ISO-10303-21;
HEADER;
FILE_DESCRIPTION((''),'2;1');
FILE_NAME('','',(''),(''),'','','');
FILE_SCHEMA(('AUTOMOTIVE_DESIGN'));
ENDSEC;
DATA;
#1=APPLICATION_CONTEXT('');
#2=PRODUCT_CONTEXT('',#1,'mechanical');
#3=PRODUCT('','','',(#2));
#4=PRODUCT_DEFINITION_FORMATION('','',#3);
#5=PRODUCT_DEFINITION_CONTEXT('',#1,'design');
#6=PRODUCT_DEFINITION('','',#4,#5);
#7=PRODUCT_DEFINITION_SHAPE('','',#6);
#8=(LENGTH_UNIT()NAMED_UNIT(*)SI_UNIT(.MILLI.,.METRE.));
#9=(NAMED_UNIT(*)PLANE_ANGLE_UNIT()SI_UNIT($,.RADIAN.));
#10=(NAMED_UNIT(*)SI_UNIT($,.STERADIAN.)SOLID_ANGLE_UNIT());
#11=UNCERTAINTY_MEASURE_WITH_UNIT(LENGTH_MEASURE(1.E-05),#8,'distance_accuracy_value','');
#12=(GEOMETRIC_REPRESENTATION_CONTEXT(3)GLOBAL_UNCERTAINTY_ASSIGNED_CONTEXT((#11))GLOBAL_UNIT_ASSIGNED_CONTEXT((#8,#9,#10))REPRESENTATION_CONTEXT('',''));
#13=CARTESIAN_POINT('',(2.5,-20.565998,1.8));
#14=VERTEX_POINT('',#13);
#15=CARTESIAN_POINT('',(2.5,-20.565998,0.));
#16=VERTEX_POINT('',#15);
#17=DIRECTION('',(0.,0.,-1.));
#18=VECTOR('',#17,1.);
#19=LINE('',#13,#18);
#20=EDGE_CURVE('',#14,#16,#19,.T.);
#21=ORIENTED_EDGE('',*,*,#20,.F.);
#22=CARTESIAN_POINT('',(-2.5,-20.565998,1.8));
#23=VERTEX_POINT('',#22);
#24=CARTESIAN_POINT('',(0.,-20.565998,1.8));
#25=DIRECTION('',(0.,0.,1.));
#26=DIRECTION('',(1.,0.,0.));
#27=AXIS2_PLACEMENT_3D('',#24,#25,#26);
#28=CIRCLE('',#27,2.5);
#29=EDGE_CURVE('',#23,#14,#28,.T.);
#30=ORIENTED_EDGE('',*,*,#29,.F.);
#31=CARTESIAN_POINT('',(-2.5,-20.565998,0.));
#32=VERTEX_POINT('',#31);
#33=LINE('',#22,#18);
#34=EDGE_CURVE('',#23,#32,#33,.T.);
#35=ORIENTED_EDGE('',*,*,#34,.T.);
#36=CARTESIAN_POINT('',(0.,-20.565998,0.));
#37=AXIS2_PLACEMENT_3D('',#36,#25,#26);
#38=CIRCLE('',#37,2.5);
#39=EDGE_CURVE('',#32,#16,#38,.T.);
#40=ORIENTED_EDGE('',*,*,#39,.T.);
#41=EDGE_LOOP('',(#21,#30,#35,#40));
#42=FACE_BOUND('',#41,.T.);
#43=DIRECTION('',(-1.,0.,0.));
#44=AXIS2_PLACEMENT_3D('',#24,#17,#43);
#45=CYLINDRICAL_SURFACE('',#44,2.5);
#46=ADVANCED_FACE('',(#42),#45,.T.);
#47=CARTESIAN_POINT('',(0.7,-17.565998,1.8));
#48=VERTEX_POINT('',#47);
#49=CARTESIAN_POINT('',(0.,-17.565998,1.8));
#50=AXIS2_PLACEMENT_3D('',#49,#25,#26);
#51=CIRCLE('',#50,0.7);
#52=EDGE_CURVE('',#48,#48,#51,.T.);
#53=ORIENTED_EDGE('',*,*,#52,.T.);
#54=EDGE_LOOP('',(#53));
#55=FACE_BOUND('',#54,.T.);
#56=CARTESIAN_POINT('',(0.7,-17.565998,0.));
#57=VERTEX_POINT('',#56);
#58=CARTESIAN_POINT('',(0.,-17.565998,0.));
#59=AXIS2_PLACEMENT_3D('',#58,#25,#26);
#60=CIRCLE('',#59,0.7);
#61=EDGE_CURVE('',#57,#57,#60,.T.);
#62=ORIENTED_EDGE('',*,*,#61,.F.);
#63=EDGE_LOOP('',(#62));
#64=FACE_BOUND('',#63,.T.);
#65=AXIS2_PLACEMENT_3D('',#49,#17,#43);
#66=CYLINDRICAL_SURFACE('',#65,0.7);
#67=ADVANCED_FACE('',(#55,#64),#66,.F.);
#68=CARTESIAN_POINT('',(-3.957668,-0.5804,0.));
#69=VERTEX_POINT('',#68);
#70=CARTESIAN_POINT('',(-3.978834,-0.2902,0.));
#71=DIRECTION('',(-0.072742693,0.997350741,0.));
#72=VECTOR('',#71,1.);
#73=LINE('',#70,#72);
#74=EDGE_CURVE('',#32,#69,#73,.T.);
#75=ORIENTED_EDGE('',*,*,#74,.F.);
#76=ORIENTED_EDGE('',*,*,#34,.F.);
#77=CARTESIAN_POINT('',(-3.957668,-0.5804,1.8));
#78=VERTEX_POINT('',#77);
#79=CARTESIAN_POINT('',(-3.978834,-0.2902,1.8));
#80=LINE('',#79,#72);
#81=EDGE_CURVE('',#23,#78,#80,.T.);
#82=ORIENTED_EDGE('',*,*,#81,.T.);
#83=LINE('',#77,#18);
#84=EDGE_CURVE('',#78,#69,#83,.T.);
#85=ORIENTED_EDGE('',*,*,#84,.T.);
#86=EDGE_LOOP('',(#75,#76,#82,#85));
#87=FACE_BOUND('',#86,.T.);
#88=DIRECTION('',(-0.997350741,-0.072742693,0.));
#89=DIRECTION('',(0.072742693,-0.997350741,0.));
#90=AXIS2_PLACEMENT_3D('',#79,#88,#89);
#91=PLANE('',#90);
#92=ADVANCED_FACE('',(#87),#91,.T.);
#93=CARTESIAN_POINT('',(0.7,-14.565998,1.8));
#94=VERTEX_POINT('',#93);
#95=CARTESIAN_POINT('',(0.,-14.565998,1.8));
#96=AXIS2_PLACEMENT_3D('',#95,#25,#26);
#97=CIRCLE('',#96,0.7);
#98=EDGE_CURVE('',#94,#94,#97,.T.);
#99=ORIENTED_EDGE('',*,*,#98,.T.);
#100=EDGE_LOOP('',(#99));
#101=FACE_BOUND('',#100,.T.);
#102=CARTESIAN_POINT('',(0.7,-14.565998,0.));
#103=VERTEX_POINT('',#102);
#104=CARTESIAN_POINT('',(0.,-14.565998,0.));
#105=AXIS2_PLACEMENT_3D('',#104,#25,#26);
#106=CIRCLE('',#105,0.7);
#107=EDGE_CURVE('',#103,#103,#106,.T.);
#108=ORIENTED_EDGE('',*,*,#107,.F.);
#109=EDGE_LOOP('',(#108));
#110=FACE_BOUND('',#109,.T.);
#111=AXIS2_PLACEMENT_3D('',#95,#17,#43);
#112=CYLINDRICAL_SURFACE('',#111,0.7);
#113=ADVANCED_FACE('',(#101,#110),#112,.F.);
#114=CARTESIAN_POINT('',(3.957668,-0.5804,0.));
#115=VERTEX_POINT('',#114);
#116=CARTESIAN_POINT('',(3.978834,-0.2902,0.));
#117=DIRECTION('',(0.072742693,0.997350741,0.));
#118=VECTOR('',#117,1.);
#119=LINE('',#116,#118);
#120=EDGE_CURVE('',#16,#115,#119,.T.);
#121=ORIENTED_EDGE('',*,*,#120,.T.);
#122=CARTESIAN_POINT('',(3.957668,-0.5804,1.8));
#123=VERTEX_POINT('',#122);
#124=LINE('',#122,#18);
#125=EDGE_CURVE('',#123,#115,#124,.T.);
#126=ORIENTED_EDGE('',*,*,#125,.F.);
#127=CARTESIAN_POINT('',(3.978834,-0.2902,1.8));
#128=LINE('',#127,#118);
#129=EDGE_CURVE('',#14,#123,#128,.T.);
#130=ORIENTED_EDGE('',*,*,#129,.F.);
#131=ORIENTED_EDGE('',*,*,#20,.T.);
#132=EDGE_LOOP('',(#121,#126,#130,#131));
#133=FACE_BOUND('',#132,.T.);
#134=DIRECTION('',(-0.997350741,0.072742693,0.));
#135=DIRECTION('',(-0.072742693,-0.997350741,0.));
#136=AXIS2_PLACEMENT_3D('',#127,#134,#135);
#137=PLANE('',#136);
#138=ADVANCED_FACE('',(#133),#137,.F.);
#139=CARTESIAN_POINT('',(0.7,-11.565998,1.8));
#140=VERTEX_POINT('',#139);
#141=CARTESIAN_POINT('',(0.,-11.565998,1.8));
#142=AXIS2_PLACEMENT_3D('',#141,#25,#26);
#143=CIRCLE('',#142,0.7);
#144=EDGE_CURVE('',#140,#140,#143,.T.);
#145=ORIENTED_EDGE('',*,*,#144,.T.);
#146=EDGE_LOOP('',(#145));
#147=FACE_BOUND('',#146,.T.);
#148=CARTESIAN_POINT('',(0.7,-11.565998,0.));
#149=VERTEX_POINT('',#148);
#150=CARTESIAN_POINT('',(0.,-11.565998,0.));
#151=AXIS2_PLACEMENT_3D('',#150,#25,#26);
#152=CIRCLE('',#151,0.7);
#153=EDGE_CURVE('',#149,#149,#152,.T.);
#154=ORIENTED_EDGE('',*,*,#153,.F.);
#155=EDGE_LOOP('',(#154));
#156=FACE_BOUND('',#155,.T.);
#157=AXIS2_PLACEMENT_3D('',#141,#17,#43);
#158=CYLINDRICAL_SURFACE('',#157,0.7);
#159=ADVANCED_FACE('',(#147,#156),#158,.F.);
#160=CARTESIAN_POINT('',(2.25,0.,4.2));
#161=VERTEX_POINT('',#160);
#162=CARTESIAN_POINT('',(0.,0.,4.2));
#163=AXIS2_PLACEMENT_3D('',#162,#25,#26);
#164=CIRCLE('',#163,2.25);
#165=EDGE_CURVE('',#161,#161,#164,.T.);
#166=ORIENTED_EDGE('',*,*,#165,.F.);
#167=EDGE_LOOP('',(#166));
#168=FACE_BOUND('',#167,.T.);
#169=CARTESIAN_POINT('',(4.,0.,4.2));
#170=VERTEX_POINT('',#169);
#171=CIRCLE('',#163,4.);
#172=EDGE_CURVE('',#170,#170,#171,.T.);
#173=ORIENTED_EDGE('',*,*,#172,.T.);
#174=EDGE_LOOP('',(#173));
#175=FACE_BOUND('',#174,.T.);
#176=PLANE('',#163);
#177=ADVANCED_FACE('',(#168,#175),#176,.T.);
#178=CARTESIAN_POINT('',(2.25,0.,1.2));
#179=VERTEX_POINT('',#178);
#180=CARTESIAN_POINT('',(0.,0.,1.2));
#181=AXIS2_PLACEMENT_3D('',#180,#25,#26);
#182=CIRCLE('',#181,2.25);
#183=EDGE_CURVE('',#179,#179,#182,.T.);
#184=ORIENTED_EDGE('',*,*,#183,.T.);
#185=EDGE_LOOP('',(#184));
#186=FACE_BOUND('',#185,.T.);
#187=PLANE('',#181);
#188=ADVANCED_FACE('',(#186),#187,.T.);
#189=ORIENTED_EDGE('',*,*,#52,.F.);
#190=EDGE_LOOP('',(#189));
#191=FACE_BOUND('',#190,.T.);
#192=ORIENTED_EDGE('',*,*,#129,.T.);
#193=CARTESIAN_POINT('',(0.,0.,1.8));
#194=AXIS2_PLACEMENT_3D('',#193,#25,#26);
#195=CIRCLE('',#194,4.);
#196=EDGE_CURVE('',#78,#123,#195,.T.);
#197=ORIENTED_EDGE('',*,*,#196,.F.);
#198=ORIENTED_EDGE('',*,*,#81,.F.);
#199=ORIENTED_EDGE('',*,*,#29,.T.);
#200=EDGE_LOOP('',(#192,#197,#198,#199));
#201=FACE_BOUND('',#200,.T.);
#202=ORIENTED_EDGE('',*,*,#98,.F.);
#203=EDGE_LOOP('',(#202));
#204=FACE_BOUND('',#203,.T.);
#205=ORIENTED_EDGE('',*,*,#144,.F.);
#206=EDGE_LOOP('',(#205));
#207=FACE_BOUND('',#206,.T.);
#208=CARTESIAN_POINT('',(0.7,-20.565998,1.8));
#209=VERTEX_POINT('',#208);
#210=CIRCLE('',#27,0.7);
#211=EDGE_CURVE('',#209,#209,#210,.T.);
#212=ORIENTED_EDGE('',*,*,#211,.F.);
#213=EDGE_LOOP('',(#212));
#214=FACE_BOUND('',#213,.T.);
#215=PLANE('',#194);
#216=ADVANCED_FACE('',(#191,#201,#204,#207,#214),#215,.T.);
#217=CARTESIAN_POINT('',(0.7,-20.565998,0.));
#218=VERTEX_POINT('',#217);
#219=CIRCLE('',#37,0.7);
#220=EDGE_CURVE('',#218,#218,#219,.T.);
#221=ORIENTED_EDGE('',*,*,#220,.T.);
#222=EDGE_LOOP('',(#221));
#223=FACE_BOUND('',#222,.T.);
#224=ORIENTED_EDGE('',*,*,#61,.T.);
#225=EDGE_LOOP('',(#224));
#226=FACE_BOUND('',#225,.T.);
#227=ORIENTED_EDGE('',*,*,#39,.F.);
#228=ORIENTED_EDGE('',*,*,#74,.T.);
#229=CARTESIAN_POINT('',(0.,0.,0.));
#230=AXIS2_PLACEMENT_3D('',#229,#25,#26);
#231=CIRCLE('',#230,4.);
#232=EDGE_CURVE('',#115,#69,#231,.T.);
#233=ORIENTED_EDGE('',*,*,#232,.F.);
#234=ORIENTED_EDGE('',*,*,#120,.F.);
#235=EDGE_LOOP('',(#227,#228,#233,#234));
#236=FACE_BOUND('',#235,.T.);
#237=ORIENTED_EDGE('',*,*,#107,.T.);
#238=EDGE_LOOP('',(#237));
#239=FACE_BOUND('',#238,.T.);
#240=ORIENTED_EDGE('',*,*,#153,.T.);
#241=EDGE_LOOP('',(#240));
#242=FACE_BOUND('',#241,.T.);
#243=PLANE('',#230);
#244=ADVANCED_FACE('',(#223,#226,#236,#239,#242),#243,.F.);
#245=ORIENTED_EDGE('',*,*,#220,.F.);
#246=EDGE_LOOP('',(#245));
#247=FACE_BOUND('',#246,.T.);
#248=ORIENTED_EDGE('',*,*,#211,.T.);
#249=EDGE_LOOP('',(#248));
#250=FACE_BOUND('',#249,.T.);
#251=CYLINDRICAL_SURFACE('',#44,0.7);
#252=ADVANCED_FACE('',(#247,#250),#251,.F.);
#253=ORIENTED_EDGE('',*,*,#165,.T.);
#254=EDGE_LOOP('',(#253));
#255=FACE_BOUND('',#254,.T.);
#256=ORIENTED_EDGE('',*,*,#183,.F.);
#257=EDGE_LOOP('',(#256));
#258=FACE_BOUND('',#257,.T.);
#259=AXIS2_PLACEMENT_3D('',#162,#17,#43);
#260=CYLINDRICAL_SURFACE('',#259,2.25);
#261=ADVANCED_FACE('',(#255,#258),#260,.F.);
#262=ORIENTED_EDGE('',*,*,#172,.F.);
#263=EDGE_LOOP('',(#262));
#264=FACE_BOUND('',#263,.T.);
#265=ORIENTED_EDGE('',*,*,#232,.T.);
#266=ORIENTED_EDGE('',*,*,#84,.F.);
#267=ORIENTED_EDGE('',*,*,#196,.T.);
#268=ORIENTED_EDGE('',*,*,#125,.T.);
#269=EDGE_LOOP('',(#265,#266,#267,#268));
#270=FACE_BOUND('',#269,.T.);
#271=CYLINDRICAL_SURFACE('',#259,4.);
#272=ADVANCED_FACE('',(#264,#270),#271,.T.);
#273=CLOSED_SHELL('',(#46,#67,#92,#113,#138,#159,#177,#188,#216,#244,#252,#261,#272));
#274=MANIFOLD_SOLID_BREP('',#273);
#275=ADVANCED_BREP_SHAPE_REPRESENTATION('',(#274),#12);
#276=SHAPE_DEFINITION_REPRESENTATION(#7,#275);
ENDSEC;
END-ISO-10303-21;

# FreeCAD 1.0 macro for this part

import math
import FreeCAD as App
import Part
import Sketcher

V = App.Vector

doc = App.newDocument("Part")
body = doc.addObject("PartDesign::Body", "Body")

# Sketch on XY plane
sketch1 = body.newObject("Sketcher::SketchObject", "Sketch")
sketch1.AttachmentSupport = (doc.getObject("XY_Plane"), [""])
sketch1.MapMode = "FlatFace"
sketch1.addGeometry(Part.Circle(V(0, 0, 0), V(0, 0, 1), 4), False)
sketch1.addGeometry(Part.Circle(V(0, 0, 0), V(0, 0, 1), 2.2), False)
sketch1.addConstraint(Sketcher.Constraint("Coincident", 0, 3, -1, 1))
sketch1.addConstraint(Sketcher.Constraint("Coincident", 1, 3, -1, 1))
sketch1.addConstraint(Sketcher.Constraint("Diameter", 0, 8.0))
sketch1.addConstraint(Sketcher.Constraint("Diameter", 1, 4.5))
pad1 = body.newObject("PartDesign::Pad", "Pad")
pad1.Profile = sketch1
pad1.Length = 4.2

# Sketch on XY plane
sketch2 = body.newObject("Sketcher::SketchObject", "Sketch001")
sketch2.AttachmentSupport = (doc.getObject("XY_Plane"), [""])
sketch2.MapMode = "FlatFace"
sketch2.addGeometry(Part.ArcOfCircle(Part.Circle(V(0, -20.6, 0), V(0, 0, 1), 2.5), math.radians(180), math.radians(360)), False)
sketch2.addGeometry(Part.LineSegment(V(2.5, -20.6, 0), V(4, -0.6, 0)), False)
sketch2.addGeometry(Part.ArcOfCircle(Part.Circle(V(0, 0, 0), V(0, 0, 1), 4), math.radians(-172), math.radians(-8)), False)
sketch2.addGeometry(Part.LineSegment(V(-4, -0.6, 0), V(-2.5, -20.6, 0)), False)
sketch2.addGeometry(Part.Circle(V(0, -20.6, 0), V(0, 0, 1), 0.7), False)
sketch2.addGeometry(Part.Circle(V(0, -17.6, 0), V(0, 0, 1), 0.7), False)
sketch2.addGeometry(Part.Circle(V(0, -14.6, 0), V(0, 0, 1), 0.7), False)
sketch2.addGeometry(Part.Circle(V(0, -11.6, 0), V(0, 0, 1), 0.7), False)
sketch2.addConstraint(Sketcher.Constraint("Coincident", 0, 2, 1, 1))
sketch2.addConstraint(Sketcher.Constraint("Coincident", 1, 2, 2, 2))
sketch2.addConstraint(Sketcher.Constraint("Coincident", 2, 1, 3, 1))
sketch2.addConstraint(Sketcher.Constraint("Coincident", 3, 2, 0, 1))
sketch2.addConstraint(Sketcher.Constraint("Coincident", 2, 3, -1, 1))
sketch2.addConstraint(Sketcher.Constraint("Coincident", 4, 3, 0, 3))
sketch2.addConstraint(Sketcher.Constraint("Equal", 4, 5))
sketch2.addConstraint(Sketcher.Constraint("Equal", 5, 6))
sketch2.addConstraint(Sketcher.Constraint("Equal", 6, 7))
sketch2.addConstraint(Sketcher.Constraint("Symmetric", 0, 2, 3, 2, -2))
sketch2.addConstraint(Sketcher.Constraint("PointOnObject", 5, 3, -2))
sketch2.addConstraint(Sketcher.Constraint("PointOnObject", 6, 3, -2))
sketch2.addConstraint(Sketcher.Constraint("PointOnObject", 7, 3, -2))
sketch2.addConstraint(Sketcher.Constraint("Horizontal", 4, 3, 0, 2))
sketch2.addConstraint(Sketcher.Constraint("Horizontal", 1, 2, 2, 1))
sketch2.addConstraint(Sketcher.Constraint("Radius", 2, 4.0))
sketch2.addConstraint(Sketcher.Constraint("Diameter", 4, 1.4))
sketch2.addConstraint(Sketcher.Constraint("Radius", 0, 2.5))
sketch2.addConstraint(Sketcher.Constraint("DistanceY", 0, 3, 5, 3, 3.0))
sketch2.addConstraint(Sketcher.Constraint("DistanceY", 5, 3, 6, 3, 3.0))
sketch2.addConstraint(Sketcher.Constraint("DistanceY", 6, 3, 7, 3, 3.0))
sketch2.addConstraint(Sketcher.Constraint("DistanceY", 0, 3, -1, 1, 20.565998))
sketch2.addConstraint(Sketcher.Constraint("DistanceY", 1, 2, -1, 1, 0.5804))
pad2 = body.newObject("PartDesign::Pad", "Pad001")
pad2.Profile = sketch2
pad2.Length = 1.8

# Sketch on XY plane
sketch3 = body.newObject("Sketcher::SketchObject", "Sketch002")
sketch3.AttachmentSupport = (doc.getObject("XY_Plane"), [""])
sketch3.MapMode = "FlatFace"
sketch3.addGeometry(Part.Circle(V(0, 0, 0), V(0, 0, 1), 2.5), False)
sketch3.addConstraint(Sketcher.Constraint("Coincident", 0, 3, -1, 1))
sketch3.addConstraint(Sketcher.Constraint("Diameter", 0, 5.0))
pad3 = body.newObject("PartDesign::Pad", "Pad002")
pad3.Profile = sketch3
pad3.Length = 1.2

doc.recompute()
